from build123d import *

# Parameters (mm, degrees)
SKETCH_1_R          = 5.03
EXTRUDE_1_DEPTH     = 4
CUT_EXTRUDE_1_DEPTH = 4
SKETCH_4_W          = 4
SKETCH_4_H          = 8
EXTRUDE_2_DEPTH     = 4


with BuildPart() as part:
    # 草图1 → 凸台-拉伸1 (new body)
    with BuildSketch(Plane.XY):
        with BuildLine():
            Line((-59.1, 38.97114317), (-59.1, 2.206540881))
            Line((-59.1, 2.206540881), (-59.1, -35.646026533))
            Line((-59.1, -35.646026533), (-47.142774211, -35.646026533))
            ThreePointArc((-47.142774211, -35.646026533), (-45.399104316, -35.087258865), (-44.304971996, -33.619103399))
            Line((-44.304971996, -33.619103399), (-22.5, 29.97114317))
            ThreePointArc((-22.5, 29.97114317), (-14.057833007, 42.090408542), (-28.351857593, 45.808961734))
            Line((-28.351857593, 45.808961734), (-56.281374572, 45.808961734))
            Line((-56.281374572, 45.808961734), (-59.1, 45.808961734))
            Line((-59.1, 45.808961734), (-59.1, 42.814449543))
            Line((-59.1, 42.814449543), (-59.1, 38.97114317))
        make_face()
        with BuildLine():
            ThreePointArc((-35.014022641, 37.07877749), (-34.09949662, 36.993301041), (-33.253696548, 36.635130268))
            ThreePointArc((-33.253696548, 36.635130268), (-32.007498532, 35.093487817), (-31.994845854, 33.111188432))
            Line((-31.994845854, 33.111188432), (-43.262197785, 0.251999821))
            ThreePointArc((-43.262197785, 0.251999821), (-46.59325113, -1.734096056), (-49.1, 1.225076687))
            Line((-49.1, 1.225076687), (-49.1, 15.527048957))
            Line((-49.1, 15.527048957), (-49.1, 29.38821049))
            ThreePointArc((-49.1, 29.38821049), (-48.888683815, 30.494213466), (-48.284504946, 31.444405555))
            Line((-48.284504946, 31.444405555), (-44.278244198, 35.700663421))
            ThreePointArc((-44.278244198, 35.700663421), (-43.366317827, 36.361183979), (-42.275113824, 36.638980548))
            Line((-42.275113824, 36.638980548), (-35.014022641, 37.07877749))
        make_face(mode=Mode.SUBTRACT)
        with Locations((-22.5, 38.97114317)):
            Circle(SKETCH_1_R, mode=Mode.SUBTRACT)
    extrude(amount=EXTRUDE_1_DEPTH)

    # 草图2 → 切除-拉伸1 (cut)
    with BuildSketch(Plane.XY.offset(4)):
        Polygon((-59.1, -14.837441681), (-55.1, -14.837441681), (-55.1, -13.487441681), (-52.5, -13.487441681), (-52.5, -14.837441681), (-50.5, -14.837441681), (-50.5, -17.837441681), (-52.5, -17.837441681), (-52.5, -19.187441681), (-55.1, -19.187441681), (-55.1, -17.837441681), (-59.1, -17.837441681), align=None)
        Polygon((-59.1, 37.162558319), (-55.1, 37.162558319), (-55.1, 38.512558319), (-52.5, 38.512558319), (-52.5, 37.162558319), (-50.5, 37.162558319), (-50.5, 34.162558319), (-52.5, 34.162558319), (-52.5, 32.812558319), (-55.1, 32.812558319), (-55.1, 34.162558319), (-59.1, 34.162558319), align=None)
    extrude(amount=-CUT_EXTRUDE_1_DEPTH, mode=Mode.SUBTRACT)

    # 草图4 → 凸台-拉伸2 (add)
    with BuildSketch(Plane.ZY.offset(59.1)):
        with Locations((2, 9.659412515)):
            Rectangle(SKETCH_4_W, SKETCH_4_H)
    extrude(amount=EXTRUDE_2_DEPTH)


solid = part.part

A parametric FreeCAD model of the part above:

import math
import FreeCAD as App
import Part
import Sketcher
from FreeCAD import Vector
Q = App.Units.Quantity


def add_polygon(sketch, points):
    """Adds a closed chain of lines whose ends are joined by coincident constraints."""
    first, n = sketch.GeometryCount, len(points)
    for a, b in zip(points, points[1:] + points[:1]):
        sketch.addGeometry(Part.LineSegment(App.Vector(*a, 0), App.Vector(*b, 0)), False)
    for i in range(n):
        sketch.addConstraint(Sketcher.Constraint("Coincident", first + i, 2, first + (i + 1) % n, 1))

doc = App.newDocument("Part")
body = doc.addObject("PartDesign::Body", "Body")

# Sketch on XY plane
sketch1 = doc.addObject("Sketcher::SketchObject", "Sketch")
body.addObject(sketch1)
sketch1.AttachmentSupport = (doc.XY_Plane, [""])
sketch1.MapMode = "FlatFace"
sketch1.addGeometry([
    Part.LineSegment(Vector(-59.1, -35.6, 0), Vector(-47.1, -35.6, 0)),  # 0
    Part.ArcOfCircle(Part.Circle(Vector(-47.1, -32.6, 0), Vector(0, 0, 1), 3), math.radians(-90), math.radians(-19)),  # 1
    Part.LineSegment(Vector(-44.3, -33.6, 0), Vector(-22.5, 30, 0)),  # 2
    Part.ArcOfCircle(Part.Circle(Vector(-22.5, 39, 0), Vector(0, 0, 1), 9), math.radians(-90), math.radians(131)),  # 3
    Part.LineSegment(Vector(-28.4, 45.8, 0), Vector(-59.1, 45.8, 0)),  # 4
    Part.LineSegment(Vector(-59.1, 45.8, 0), Vector(-59.1, -35.6, 0)),  # 5
    Part.LineSegment(Vector(-42.3, 36.6, 0), Vector(-35, 37.1, 0)),  # 6
    Part.ArcOfCircle(Part.Circle(Vector(-34.8, 34.1, 0), Vector(0, 0, 1), 3), math.radians(58), math.radians(93)),  # 7
    Part.ArcOfCircle(Part.Circle(Vector(-34.8, 34.1, 0), Vector(0, 0, 1), 3), math.radians(-19), math.radians(58)),  # 8
    Part.LineSegment(Vector(-32, 33.1, 0), Vector(-43.3, 0.3, 0)),  # 9
    Part.ArcOfCircle(Part.Circle(Vector(-46.1, 1.2, 0), Vector(0, 0, 1), 3), math.radians(180), math.radians(341)),  # 10
    Part.LineSegment(Vector(-49.1, 1.2, 0), Vector(-49.1, 29.4, 0)),  # 11
    Part.ArcOfCircle(Part.Circle(Vector(-46.1, 29.4, 0), Vector(0, 0, 1), 3), math.radians(137), math.radians(180)),  # 12
    Part.LineSegment(Vector(-48.3, 31.4, 0), Vector(-44.3, 35.7, 0)),  # 13
    Part.ArcOfCircle(Part.Circle(Vector(-42.1, 33.6, 0), Vector(0, 0, 1), 3), math.radians(93), math.radians(137)),  # 14
    Part.Circle(Vector(-22.5, 39, 0), Vector(0, 0, 1), 5),  # 15
], False)
sketch1.addConstraint([
    Sketcher.Constraint("Tangent", 0, 2, 1, 1),
    Sketcher.Constraint("Tangent", 1, 2, 2, 1),
    Sketcher.Constraint("Coincident", 2, 2, 3, 1),
    Sketcher.Constraint("Coincident", 3, 2, 4, 1),
    Sketcher.Constraint("Coincident", 4, 2, 5, 1),
    Sketcher.Constraint("Coincident", 5, 2, 0, 1),
    Sketcher.Constraint("Tangent", 6, 2, 7, 2),
    Sketcher.Constraint("Tangent", 7, 1, 8, 2),
    Sketcher.Constraint("Tangent", 8, 1, 9, 1),
    Sketcher.Constraint("Tangent", 9, 2, 10, 2),
    Sketcher.Constraint("Tangent", 10, 1, 11, 1),
    Sketcher.Constraint("Tangent", 11, 2, 12, 2),
    Sketcher.Constraint("Tangent", 12, 1, 13, 1),
    Sketcher.Constraint("Tangent", 13, 2, 14, 2),
    Sketcher.Constraint("Tangent", 14, 1, 6, 1),
    Sketcher.Constraint("Horizontal", 0),
    Sketcher.Constraint("Horizontal", 4),
    Sketcher.Constraint("Vertical", 5),
    Sketcher.Constraint("Vertical", 11),
    Sketcher.Constraint("Coincident", 15, 3, 3, 3),
    Sketcher.Constraint("Equal", 1, 7),
    Sketcher.Constraint("Equal", 7, 8),
    Sketcher.Constraint("Equal", 8, 10),
    Sketcher.Constraint("Equal", 10, 12),
    Sketcher.Constraint("Equal", 12, 14),
    Sketcher.Constraint("Parallel", 2, 9),
    Sketcher.Constraint("Vertical", 15, 3, 2, 2),
    Sketcher.Constraint("Radius", 1, Q("3 mm")),
    Sketcher.Constraint("Radius", 3, Q("9 mm")),
    Sketcher.Constraint("Diameter", 15, Q("10.06 mm")),
    Sketcher.Constraint("DistanceX", 4, 2, 12, 3, Q("13 mm")),
    Sketcher.Constraint("DistanceX", 3, 3, -1, 1, Q("22.5 mm")),
    Sketcher.Constraint("DistanceX", 10, 3, -1, 1, Q("46.1 mm")),
    Sketcher.Constraint("DistanceY", -1, 1, 9, 2, Q("0.252 mm")),
    Sketcher.Constraint("Distance", 6, Q("7.274398 mm")),
    Sketcher.Constraint("DistanceY", 5, 2, 5, 1, Q("81.454988 mm")),
    Sketcher.Constraint("Distance", 2, Q("67.224819 mm")),
    Sketcher.Constraint("DistanceX", 0, 1, 0, 2, Q("11.957226 mm")),
    Sketcher.Constraint("DistanceY", 11, 1, 11, 2, Q("28.163134 mm")),
    Sketcher.Constraint("DistanceX", 7, 3, -1, 1, Q("34.832648 mm")),
    Sketcher.Constraint("DistanceX", 14, 3, -1, 1, Q("42.093739 mm")),
    Sketcher.Constraint("DistanceY", -1, 1, 3, 2, Q("45.808962 mm")),
    Sketcher.Constraint("DistanceY", -1, 1, 7, 1, Q("36.63513 mm")),
])
pad1 = doc.addObject("PartDesign::Pad", "Pad")
body.addObject(pad1)
pad1.Profile = sketch1
pad1.Length = 4

# Sketch on XY plane
sketch2 = doc.addObject("Sketcher::SketchObject", "Sketch001")
body.addObject(sketch2)
sketch2.AttachmentSupport = (doc.XY_Plane, [""])
sketch2.MapMode = "FlatFace"
sketch2.AttachmentOffset = App.Placement(Vector(0, 0, 4), App.Rotation())
add_polygon(sketch2, [(-55.1, -14.8), (-59.1, -14.8), (-59.1, -17.8), (-55.1, -17.8), (-55.1, -19.2), (-52.5, -19.2), (-52.5, -17.8), (-50.5, -17.8), (-50.5, -14.8), (-52.5, -14.8), (-52.5, -13.5), (-55.1, -13.5)])  # lines 0-11
add_polygon(sketch2, [(-55.1, 37.2), (-59.1, 37.2), (-59.1, 34.2), (-55.1, 34.2), (-55.1, 32.8), (-52.5, 32.8), (-52.5, 34.2), (-50.5, 34.2), (-50.5, 37.2), (-52.5, 37.2), (-52.5, 38.5), (-55.1, 38.5)])  # lines 12-23
sketch2.addConstraint([
    Sketcher.Constraint("Horizontal", 0),
    Sketcher.Constraint("Vertical", 1),
    Sketcher.Constraint("Horizontal", 2),
    Sketcher.Constraint("Vertical", 3),
    Sketcher.Constraint("Horizontal", 4),
    Sketcher.Constraint("Vertical", 5),
    Sketcher.Constraint("Horizontal", 6),
    Sketcher.Constraint("Vertical", 7),
    Sketcher.Constraint("Horizontal", 8),
    Sketcher.Constraint("Vertical", 9),
    Sketcher.Constraint("Horizontal", 10),
    Sketcher.Constraint("Vertical", 11),
    Sketcher.Constraint("Horizontal", 12),
    Sketcher.Constraint("Vertical", 13),
    Sketcher.Constraint("Horizontal", 14),
    Sketcher.Constraint("Vertical", 15),
    Sketcher.Constraint("Horizontal", 16),
    Sketcher.Constraint("Vertical", 17),
    Sketcher.Constraint("Horizontal", 18),
    Sketcher.Constraint("Vertical", 19),
    Sketcher.Constraint("Horizontal", 20),
    Sketcher.Constraint("Vertical", 21),
    Sketcher.Constraint("Horizontal", 22),
    Sketcher.Constraint("Vertical", 23),
    Sketcher.Constraint("Horizontal", 2, 2, 5, 2),
    Sketcher.Constraint("Horizontal", 0, 2, 7, 2),
    Sketcher.Constraint("Horizontal", 14, 2, 17, 2),
    Sketcher.Constraint("Horizontal", 12, 2, 19, 2),
    Sketcher.Constraint("Vertical", 5, 2, 8, 2),
    Sketcher.Constraint("Vertical", 3, 2, 10, 2),
    Sketcher.Constraint("Vertical", 1, 2, 12, 2),
    Sketcher.Constraint("Vertical", 11, 2, 14, 2),
    Sketcher.Constraint("Vertical", 9, 2, 16, 2),
    Sketcher.Constraint("Vertical", 7, 2, 18, 2),
    Sketcher.Constraint("Vertical", 17, 2, 20, 2),
    Sketcher.Constraint("Vertical", 15, 2, 22, 2),
    Sketcher.Constraint("Equal", 5, 9),
    Sketcher.Constraint("Equal", 7, 13),
    Sketcher.Constraint("Equal", 11, 15),
    Sketcher.Constraint("Equal", 17, 21),
    Sketcher.Constraint("DistanceX", 0, 2, 0, 1, Q("4 mm")),
    Sketcher.Constraint("DistanceX", 6, 1, 6, 2, Q("2 mm")),
    Sketcher.Constraint("DistanceY", 1, 2, 1, 1, Q("3 mm")),
    Sketcher.Constraint("DistanceX", 4, 1, 4, 2, Q("2.6 mm")),
    Sketcher.Constraint("DistanceY", 0, 2, 12, 2, Q("52 mm")),
    Sketcher.Constraint("DistanceY", 3, 2, 3, 1, Q("1.35 mm")),
    Sketcher.Constraint("DistanceX", 0, 2, -1, 1, Q("59.1 mm")),
    Sketcher.Constraint("DistanceY", 0, 2, -1, 1, Q("14.837442 mm")),
])
pocket1 = doc.addObject("PartDesign::Pocket", "Pocket")
body.addObject(pocket1)
pocket1.Profile = sketch2
pocket1.Length = 4

# Sketch on YZ plane
sketch3 = doc.addObject("Sketcher::SketchObject", "Sketch002")
body.addObject(sketch3)
sketch3.AttachmentSupport = (doc.YZ_Plane, [""])
sketch3.MapMode = "FlatFace"
sketch3.AttachmentOffset = App.Placement(Vector(0, 0, -59.1), App.Rotation())
add_polygon(sketch3, [(13.7, 0), (5.7, 0), (5.7, 4), (13.7, 4)])  # lines 0-3
sketch3.addConstraint([
    Sketcher.Constraint("Horizontal", 0),
    Sketcher.Constraint("Vertical", 1),
    Sketcher.Constraint("Horizontal", 2),
    Sketcher.Constraint("Vertical", 3),
    Sketcher.Constraint("PointOnObject", 0, 2, -1),
    Sketcher.Constraint("DistanceX", 0, 2, 0, 1, Q("8 mm")),
    Sketcher.Constraint("DistanceY", 1, 1, 1, 2, Q("4 mm")),
    Sketcher.Constraint("DistanceX", -1, 1, 0, 2, Q("5.659413 mm")),
])
pad2 = doc.addObject("PartDesign::Pad", "Pad001")
body.addObject(pad2)
pad2.Profile = sketch3
pad2.Length = 4
pad2.Reversed = True

doc.recompute()
